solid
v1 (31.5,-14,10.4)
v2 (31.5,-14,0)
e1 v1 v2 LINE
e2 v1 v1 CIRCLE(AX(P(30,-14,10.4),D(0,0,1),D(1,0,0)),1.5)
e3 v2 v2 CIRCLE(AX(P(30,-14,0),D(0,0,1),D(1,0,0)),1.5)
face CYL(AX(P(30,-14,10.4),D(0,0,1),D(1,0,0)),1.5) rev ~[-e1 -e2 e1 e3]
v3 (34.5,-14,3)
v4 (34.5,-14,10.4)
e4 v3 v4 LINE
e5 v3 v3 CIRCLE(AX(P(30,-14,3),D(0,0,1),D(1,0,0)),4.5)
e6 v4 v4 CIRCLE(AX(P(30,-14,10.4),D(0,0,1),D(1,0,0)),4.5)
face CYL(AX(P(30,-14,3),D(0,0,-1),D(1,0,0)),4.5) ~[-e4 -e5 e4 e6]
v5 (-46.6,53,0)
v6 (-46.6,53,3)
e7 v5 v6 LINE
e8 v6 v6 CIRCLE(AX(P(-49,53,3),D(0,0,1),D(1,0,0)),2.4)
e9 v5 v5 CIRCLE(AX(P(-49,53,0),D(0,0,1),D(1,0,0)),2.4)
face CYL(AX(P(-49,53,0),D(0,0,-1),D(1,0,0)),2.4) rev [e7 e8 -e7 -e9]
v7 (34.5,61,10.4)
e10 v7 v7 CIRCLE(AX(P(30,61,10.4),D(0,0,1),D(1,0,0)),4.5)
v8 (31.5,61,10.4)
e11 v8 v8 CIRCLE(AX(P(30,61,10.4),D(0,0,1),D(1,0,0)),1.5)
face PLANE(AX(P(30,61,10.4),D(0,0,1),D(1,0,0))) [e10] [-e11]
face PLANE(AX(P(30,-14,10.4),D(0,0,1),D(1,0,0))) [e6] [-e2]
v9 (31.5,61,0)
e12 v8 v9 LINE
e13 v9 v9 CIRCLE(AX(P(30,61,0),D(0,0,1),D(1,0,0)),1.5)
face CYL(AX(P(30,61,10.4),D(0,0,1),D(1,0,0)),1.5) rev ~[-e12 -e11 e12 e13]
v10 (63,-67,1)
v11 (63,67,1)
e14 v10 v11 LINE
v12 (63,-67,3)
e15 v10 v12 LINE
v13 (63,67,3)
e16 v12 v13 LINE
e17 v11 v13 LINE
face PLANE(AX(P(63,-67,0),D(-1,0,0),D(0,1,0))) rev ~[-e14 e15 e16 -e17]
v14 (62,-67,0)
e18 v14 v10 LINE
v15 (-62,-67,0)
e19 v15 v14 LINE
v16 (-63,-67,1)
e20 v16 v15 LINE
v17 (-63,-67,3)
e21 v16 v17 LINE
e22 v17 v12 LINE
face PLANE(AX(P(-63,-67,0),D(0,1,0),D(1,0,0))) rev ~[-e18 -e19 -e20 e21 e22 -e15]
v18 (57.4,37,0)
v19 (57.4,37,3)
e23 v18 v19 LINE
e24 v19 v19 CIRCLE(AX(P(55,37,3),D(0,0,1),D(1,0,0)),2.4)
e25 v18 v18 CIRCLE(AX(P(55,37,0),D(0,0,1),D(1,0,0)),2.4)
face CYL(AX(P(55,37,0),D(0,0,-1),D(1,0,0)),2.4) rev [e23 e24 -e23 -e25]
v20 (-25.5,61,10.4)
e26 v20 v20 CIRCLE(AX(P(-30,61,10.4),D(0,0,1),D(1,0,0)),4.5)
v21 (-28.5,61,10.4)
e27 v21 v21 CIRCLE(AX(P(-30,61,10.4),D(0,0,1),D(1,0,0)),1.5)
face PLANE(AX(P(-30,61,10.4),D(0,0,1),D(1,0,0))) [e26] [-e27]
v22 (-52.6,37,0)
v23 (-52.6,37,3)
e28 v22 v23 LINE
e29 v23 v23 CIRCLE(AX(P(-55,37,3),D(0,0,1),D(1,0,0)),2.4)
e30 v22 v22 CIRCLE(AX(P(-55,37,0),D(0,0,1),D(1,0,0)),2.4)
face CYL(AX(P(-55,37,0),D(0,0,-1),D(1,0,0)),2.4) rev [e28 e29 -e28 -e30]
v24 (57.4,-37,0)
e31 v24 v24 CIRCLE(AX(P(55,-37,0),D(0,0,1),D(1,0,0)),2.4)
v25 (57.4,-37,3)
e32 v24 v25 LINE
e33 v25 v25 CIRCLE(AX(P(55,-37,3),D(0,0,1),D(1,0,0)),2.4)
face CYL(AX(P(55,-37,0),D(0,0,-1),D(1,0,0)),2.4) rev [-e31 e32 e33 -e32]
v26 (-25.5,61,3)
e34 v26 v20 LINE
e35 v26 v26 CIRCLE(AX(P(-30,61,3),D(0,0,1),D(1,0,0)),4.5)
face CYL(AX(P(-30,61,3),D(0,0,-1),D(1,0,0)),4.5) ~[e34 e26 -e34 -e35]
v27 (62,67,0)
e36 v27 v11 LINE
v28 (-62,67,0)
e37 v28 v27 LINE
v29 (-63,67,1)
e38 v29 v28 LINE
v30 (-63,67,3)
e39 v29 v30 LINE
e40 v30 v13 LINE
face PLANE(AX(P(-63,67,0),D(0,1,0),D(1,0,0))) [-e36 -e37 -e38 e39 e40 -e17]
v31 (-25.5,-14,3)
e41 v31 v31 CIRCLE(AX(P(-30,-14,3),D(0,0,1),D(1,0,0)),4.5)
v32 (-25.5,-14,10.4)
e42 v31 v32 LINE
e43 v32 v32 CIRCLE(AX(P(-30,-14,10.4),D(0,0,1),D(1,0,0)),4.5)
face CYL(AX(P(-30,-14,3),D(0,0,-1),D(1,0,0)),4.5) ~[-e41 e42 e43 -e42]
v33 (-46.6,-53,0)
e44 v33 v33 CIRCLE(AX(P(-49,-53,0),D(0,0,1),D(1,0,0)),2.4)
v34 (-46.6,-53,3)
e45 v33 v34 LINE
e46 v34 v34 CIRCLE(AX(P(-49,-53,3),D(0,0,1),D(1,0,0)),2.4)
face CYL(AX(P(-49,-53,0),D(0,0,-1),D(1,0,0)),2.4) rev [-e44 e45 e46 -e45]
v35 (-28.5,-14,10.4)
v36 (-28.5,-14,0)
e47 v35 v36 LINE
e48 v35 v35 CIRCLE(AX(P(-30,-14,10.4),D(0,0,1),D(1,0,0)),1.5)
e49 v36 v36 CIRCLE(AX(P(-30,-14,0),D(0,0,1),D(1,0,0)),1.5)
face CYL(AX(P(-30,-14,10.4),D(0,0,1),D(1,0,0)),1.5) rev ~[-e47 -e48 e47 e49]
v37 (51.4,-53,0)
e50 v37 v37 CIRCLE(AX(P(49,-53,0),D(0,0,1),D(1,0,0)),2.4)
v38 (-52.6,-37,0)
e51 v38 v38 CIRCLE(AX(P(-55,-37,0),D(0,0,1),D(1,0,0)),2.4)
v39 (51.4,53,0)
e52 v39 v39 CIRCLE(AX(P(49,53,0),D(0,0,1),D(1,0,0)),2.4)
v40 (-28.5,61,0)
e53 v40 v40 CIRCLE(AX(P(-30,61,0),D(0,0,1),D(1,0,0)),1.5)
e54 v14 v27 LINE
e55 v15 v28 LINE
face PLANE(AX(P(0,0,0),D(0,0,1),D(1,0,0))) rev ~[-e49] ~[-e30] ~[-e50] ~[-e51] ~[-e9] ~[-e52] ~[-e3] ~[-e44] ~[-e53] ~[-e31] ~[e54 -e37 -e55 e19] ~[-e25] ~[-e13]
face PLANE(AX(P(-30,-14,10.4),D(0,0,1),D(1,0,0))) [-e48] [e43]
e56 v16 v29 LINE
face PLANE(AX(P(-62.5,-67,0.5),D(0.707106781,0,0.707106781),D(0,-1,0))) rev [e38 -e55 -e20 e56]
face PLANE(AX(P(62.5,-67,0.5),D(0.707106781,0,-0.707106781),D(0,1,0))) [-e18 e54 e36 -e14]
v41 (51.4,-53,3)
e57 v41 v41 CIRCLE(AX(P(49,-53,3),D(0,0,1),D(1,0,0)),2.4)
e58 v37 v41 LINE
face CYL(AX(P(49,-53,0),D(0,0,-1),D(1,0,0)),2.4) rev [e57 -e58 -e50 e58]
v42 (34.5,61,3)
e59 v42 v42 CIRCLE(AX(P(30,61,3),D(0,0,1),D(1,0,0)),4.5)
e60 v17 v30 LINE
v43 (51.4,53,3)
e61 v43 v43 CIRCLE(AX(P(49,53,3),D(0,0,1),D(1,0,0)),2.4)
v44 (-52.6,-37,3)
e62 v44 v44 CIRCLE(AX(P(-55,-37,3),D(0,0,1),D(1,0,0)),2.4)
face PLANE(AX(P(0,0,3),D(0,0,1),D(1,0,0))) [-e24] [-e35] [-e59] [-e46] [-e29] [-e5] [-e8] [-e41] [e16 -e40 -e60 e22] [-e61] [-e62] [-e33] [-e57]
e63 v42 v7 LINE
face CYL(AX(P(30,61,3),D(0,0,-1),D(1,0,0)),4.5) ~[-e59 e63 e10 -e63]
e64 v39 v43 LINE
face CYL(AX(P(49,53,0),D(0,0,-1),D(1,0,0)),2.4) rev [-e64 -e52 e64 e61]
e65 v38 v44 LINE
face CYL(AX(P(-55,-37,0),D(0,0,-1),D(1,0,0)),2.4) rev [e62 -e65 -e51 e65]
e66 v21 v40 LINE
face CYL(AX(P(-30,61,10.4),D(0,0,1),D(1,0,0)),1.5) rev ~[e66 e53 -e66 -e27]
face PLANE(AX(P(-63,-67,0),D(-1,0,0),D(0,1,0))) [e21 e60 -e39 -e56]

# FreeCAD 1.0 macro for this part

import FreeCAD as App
import Part
import Sketcher

V = App.Vector
Q = App.Units.Quantity


def edges_at(feature, points):
    """Names of the edges that pass closest to the given points."""
    edges = feature.Shape.Edges
    near = lambda p: min(range(len(edges)), key=lambda i: edges[i].distToShape(Part.Vertex(*p))[0])
    return sorted({f"Edge{near(p) + 1}" for p in points})

doc = App.newDocument("Part")
params = doc.addObject("Spreadsheet::Sheet", "Params")
for row, (alias, value) in enumerate([
    ("sketch1_diameter", "4.8 mm"),
    ("sketch1_width", "126 mm"),
    ("sketch1_height", "134 mm"),
    ("pad1_length", "3 mm"),
    ("sketch2_diameter", "9 mm"),
    ("pad2_length", "7.4 mm"),
    ("sketch3_diameter", "3 mm"),
    ("chamfer_size", "1 mm"),
], start=1):
    params.set(f"A{row}", alias)
    params.set(f"B{row}", "=" + value)
    params.setAlias(f"B{row}", alias)

body = doc.addObject("PartDesign::Body", "Body")

# Sketch on XY plane
sketch1 = doc.addObject("Sketcher::SketchObject", "Sketch")
body.addObject(sketch1)
sketch1.AttachmentSupport = (doc.XY_Plane, [""])
sketch1.MapMode = "FlatFace"
sketch1.addGeometry([
    Part.LineSegment(V(-63, 67, 0), V(-63, -67, 0)),  # 0
    Part.LineSegment(V(-63, -67, 0), V(63, -67, 0)),  # 1
    Part.LineSegment(V(63, -67, 0), V(63, 67, 0)),  # 2
    Part.LineSegment(V(63, 67, 0), V(-63, 67, 0)),  # 3
    Part.Circle(V(-49, -53, 0), V(0, 0, 1), 2.4),  # 4
    Part.Circle(V(-55, -37, 0), V(0, 0, 1), 2.4),  # 5
    Part.Circle(V(49, -53, 0), V(0, 0, 1), 2.4),  # 6
    Part.Circle(V(55, -37, 0), V(0, 0, 1), 2.4),  # 7
    Part.Circle(V(-55, 37, 0), V(0, 0, 1), 2.4),  # 8
    Part.Circle(V(-49, 53, 0), V(0, 0, 1), 2.4),  # 9
    Part.Circle(V(55, 37, 0), V(0, 0, 1), 2.4),  # 10
    Part.Circle(V(49, 53, 0), V(0, 0, 1), 2.4),  # 11
], False)
sketch1.addConstraint([
    Sketcher.Constraint("Coincident", 0, 2, 1, 1),
    Sketcher.Constraint("Coincident", 1, 2, 2, 1),
    Sketcher.Constraint("Coincident", 2, 2, 3, 1),
    Sketcher.Constraint("Coincident", 3, 2, 0, 1),
    Sketcher.Constraint("Vertical", 0),
    Sketcher.Constraint("Horizontal", 1),
    Sketcher.Constraint("Vertical", 2),
    Sketcher.Constraint("Horizontal", 3),
    Sketcher.Constraint("Equal", 4, 5),
    Sketcher.Constraint("Equal", 5, 6),
    Sketcher.Constraint("Equal", 6, 7),
    Sketcher.Constraint("Equal", 7, 8),
    Sketcher.Constraint("Equal", 8, 9),
    Sketcher.Constraint("Equal", 9, 10),
    Sketcher.Constraint("Equal", 10, 11),
    Sketcher.Constraint("Symmetric", 7, 3, 8, 3, -1, 1),
    Sketcher.Constraint("Symmetric", 6, 3, 9, 3, -1, 1),
    Sketcher.Constraint("Symmetric", 5, 3, 10, 3, -1, 1),
    Sketcher.Constraint("Symmetric", 4, 3, 11, 3, -1, 1),
    Sketcher.Constraint("Symmetric", 0, 2, 2, 2, -1, 1),
    Sketcher.Constraint("Symmetric", 4, 3, 6, 3, -2),
    Sketcher.Constraint("Symmetric", 5, 3, 7, 3, -2),
    Sketcher.Constraint("Diameter", 4, Q("4.8 mm")),
    Sketcher.Constraint("DistanceX", 1, 1, 1, 2, Q("126 mm")),
    Sketcher.Constraint("DistanceY", 0, 2, 0, 1, Q("134 mm")),
    Sketcher.Constraint("DistanceX", 4, 3, -1, 1, Q("49 mm")),
    Sketcher.Constraint("DistanceY", 4, 3, -1, 1, Q("53 mm")),
    Sketcher.Constraint("DistanceX", 5, 3, -1, 1, Q("55 mm")),
    Sketcher.Constraint("DistanceY", 5, 3, -1, 1, Q("37 mm")),
])
sketch1.setExpression("Constraints[22]", "Params.sketch1_diameter")
sketch1.setExpression("Constraints[23]", "Params.sketch1_width")
sketch1.setExpression("Constraints[24]", "Params.sketch1_height")
pad1 = doc.addObject("PartDesign::Pad", "Pad")
body.addObject(pad1)
pad1.Profile = sketch1
pad1.setExpression("Length", "Params.pad1_length")

# Sketch on XY plane
sketch2 = doc.addObject("Sketcher::SketchObject", "Sketch001")
body.addObject(sketch2)
sketch2.AttachmentSupport = (doc.XY_Plane, [""])
sketch2.MapMode = "FlatFace"
sketch2.AttachmentOffset = App.Placement(V(0, 0, 3), App.Rotation())
sketch2.addGeometry([
    Part.Circle(V(-30, 61, 0), V(0, 0, 1), 4.5),
    Part.Circle(V(30, 61, 0), V(0, 0, 1), 4.5),
    Part.Circle(V(-30, -14, 0), V(0, 0, 1), 4.5),
    Part.Circle(V(30, -14, 0), V(0, 0, 1), 4.5),
], False)
sketch2.addConstraint([
    Sketcher.Constraint("Equal", 0, 1),
    Sketcher.Constraint("Equal", 1, 2),
    Sketcher.Constraint("Equal", 2, 3),
    Sketcher.Constraint("Symmetric", 0, 3, 1, 3, -2),
    Sketcher.Constraint("Symmetric", 2, 3, 3, 3, -2),
    Sketcher.Constraint("Vertical", 0, 3, 2, 3),
    Sketcher.Constraint("Diameter", 0, Q("9 mm")),
    Sketcher.Constraint("DistanceX", 0, 3, -1, 1, Q("30 mm")),
    Sketcher.Constraint("DistanceY", -1, 1, 0, 3, Q("61 mm")),
    Sketcher.Constraint("DistanceY", 2, 3, -1, 1, Q("14 mm")),
])
sketch2.setExpression("Constraints[6]", "Params.sketch2_diameter")
pad2 = doc.addObject("PartDesign::Pad", "Pad001")
body.addObject(pad2)
pad2.Profile = sketch2
pad2.setExpression("Length", "Params.pad2_length")

# Sketch on XY plane
sketch3 = doc.addObject("Sketcher::SketchObject", "Sketch002")
body.addObject(sketch3)
sketch3.AttachmentSupport = (doc.XY_Plane, [""])
sketch3.MapMode = "FlatFace"
sketch3.AttachmentOffset = App.Placement(V(0, 0, 10.4), App.Rotation())
sketch3.addGeometry([
    Part.Circle(V(-30, 61, 0), V(0, 0, 1), 1.5),
    Part.Circle(V(30, 61, 0), V(0, 0, 1), 1.5),
    Part.Circle(V(30, -14, 0), V(0, 0, 1), 1.5),
    Part.Circle(V(-30, -14, 0), V(0, 0, 1), 1.5),
], False)
sketch3.addConstraint([
    Sketcher.Constraint("Equal", 0, 1),
    Sketcher.Constraint("Equal", 1, 2),
    Sketcher.Constraint("Equal", 2, 3),
    Sketcher.Constraint("Symmetric", 0, 3, 1, 3, -2),
    Sketcher.Constraint("Symmetric", 2, 3, 3, 3, -2),
    Sketcher.Constraint("Vertical", 1, 3, 2, 3),
    Sketcher.Constraint("Diameter", 0, Q("3 mm")),
    Sketcher.Constraint("DistanceX", 0, 3, -1, 1, Q("30 mm")),
    Sketcher.Constraint("DistanceY", -1, 1, 0, 3, Q("61 mm")),
    Sketcher.Constraint("DistanceY", 2, 3, -1, 1, Q("14 mm")),
])
sketch3.setExpression("Constraints[6]", "Params.sketch3_diameter")
pocket1 = doc.addObject("PartDesign::Pocket", "Pocket")
body.addObject(pocket1)
pocket1.Profile = sketch3
pocket1.Type = "ThroughAll"
doc.recompute()

chamfer = doc.addObject("PartDesign::Chamfer", "Chamfer")
body.addObject(chamfer)
chamfer.Base = (pocket1, edges_at(pocket1, [(-63, 0, 0), (63, 0, 0)]))
chamfer.setExpression("Size", "Params.chamfer_size")

doc.recompute()
